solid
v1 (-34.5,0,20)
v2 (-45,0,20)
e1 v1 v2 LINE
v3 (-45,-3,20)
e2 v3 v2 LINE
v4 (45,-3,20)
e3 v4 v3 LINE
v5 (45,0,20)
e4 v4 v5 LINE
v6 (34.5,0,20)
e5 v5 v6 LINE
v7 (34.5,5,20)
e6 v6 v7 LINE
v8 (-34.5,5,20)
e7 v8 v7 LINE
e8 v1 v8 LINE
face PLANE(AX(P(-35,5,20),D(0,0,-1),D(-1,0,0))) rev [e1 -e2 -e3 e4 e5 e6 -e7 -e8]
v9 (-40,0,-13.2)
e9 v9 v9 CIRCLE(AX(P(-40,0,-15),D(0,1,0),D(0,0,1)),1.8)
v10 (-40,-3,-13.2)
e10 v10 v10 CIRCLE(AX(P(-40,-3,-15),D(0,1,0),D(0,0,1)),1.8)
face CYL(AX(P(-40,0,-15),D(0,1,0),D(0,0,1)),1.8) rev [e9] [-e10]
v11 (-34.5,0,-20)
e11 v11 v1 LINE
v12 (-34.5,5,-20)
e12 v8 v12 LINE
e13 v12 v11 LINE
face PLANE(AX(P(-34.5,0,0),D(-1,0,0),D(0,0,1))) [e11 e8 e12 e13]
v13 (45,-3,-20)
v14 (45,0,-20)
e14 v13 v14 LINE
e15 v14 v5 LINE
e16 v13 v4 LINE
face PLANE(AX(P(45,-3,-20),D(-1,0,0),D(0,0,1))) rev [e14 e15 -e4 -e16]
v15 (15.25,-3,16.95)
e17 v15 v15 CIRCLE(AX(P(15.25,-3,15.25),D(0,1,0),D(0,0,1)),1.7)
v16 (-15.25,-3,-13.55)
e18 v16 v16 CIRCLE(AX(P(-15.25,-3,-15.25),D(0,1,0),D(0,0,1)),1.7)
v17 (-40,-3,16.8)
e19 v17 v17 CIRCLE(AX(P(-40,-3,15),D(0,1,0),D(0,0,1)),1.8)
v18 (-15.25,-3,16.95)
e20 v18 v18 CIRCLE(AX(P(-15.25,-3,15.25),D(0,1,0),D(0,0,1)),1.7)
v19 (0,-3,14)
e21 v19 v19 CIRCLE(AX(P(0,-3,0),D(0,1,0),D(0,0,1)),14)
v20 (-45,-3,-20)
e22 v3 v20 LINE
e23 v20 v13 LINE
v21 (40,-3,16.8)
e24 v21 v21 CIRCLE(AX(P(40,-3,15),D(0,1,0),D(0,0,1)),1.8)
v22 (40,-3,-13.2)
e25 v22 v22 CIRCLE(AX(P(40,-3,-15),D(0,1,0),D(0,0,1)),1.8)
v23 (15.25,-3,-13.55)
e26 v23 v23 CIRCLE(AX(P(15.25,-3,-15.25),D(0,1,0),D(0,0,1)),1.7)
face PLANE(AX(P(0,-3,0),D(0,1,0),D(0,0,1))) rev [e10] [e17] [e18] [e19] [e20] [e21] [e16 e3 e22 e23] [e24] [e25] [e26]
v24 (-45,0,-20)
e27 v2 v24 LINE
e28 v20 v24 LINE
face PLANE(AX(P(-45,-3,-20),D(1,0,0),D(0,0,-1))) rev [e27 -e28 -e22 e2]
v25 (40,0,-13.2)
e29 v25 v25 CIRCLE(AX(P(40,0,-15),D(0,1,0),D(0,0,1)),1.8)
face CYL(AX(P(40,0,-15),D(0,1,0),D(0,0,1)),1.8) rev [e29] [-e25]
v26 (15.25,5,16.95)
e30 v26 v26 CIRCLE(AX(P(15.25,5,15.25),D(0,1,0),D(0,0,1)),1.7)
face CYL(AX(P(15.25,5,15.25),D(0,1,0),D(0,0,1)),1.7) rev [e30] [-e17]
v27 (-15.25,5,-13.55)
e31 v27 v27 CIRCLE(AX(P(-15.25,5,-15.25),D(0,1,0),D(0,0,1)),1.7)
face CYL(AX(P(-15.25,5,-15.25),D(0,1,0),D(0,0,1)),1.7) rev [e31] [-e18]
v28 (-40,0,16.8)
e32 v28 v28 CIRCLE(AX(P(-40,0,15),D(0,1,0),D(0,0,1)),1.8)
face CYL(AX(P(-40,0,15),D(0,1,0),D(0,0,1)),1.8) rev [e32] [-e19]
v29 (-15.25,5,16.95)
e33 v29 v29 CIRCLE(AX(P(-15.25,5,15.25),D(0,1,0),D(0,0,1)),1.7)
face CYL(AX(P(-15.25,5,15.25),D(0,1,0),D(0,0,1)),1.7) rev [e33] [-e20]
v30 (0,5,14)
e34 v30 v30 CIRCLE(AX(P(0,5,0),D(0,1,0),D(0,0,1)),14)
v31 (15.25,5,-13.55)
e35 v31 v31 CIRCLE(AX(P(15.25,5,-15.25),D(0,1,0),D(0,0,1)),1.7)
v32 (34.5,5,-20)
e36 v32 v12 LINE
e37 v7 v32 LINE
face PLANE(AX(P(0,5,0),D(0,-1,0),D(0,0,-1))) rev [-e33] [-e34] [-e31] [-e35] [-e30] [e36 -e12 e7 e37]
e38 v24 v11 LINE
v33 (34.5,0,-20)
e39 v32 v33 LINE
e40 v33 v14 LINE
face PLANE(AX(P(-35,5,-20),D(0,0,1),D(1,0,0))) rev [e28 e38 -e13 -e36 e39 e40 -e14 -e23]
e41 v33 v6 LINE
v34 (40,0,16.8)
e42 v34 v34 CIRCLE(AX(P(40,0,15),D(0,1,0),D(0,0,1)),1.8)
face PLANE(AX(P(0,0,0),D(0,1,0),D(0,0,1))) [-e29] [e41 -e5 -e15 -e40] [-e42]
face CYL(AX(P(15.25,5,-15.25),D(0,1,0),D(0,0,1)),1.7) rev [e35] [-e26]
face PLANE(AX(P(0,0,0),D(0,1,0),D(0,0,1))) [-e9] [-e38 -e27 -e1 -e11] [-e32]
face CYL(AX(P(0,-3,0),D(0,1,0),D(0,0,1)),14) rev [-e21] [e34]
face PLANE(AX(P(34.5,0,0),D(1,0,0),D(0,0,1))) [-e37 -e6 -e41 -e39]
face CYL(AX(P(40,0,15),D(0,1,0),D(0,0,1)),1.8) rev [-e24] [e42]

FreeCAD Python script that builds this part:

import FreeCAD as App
import Part
import Sketcher
Q = App.Units.Quantity


def add_polygon(sketch, points):
    """Adds a closed chain of lines whose ends are joined by coincident constraints."""
    first, n = sketch.GeometryCount, len(points)
    for a, b in zip(points, points[1:] + points[:1]):
        sketch.addGeometry(Part.LineSegment(App.Vector(*a, 0), App.Vector(*b, 0)), False)
    for i in range(n):
        sketch.addConstraint(Sketcher.Constraint("Coincident", first + i, 2, first + (i + 1) % n, 1))

doc = App.newDocument("Part")
body = doc.addObject("PartDesign::Body", "Body")

# Sketch on XZ plane
sketch1 = body.newObject("Sketcher::SketchObject", "Sketch")
sketch1.AttachmentSupport = (doc.getObject("XZ_Plane"), [""])
sketch1.MapMode = "FlatFace"
add_polygon(sketch1, [(-35, -20), (-35, 20), (35, 20), (35, -20)])  # lines 0-3
sketch1.addConstraint(Sketcher.Constraint("Vertical", 0))
sketch1.addConstraint(Sketcher.Constraint("Horizontal", 1))
sketch1.addConstraint(Sketcher.Constraint("Vertical", 2))
sketch1.addConstraint(Sketcher.Constraint("Horizontal", 3))
sketch1.addConstraint(Sketcher.Constraint("Symmetric", 0, 2, 2, 2, -1, 1))
sketch1.addConstraint(Sketcher.Constraint("DistanceX", 1, 1, 1, 2, Q("70 mm")))
sketch1.addConstraint(Sketcher.Constraint("DistanceY", 0, 1, 0, 2, Q("40 mm")))
pad1 = body.newObject("PartDesign::Pad", "Pad")
pad1.Profile = sketch1
pad1.Length = 5
pad1.Reversed = True

# Sketch on XZ plane
sketch2 = body.newObject("Sketcher::SketchObject", "Sketch001")
sketch2.AttachmentSupport = (doc.getObject("XZ_Plane"), [""])
sketch2.MapMode = "FlatFace"
add_polygon(sketch2, [(-45, 20), (-45, -20), (45, -20), (45, 20)])  # lines 0-3
sketch2.addConstraint(Sketcher.Constraint("Vertical", 0))
sketch2.addConstraint(Sketcher.Constraint("Horizontal", 1))
sketch2.addConstraint(Sketcher.Constraint("Vertical", 2))
sketch2.addConstraint(Sketcher.Constraint("Horizontal", 3))
sketch2.addConstraint(Sketcher.Constraint("Symmetric", 0, 2, 2, 2, -1, 1))
sketch2.addConstraint(Sketcher.Constraint("DistanceX", 1, 1, 1, 2, Q("90 mm")))
sketch2.addConstraint(Sketcher.Constraint("DistanceY", 0, 2, 0, 1, Q("40 mm")))
pad2 = body.newObject("PartDesign::Pad", "Pad001")
pad2.Profile = sketch2
pad2.Length = 3

# Sketch on XZ plane
sketch3 = body.newObject("Sketcher::SketchObject", "Sketch002")
sketch3.AttachmentSupport = (doc.getObject("XZ_Plane"), [""])
sketch3.MapMode = "FlatFace"
sketch3.addGeometry(Part.Circle(App.Vector(-40, -15, 0), App.Vector(0, 0, 1), 1.8), False)
sketch3.addGeometry(Part.Circle(App.Vector(-40, 15, 0), App.Vector(0, 0, 1), 1.8), False)
sketch3.addGeometry(Part.Circle(App.Vector(40, -15, 0), App.Vector(0, 0, 1), 1.8), False)
sketch3.addGeometry(Part.Circle(App.Vector(40, 15, 0), App.Vector(0, 0, 1), 1.8), False)
sketch3.addConstraint(Sketcher.Constraint("Equal", 0, 1))
sketch3.addConstraint(Sketcher.Constraint("Equal", 1, 2))
sketch3.addConstraint(Sketcher.Constraint("Equal", 2, 3))
sketch3.addConstraint(Sketcher.Constraint("Symmetric", 1, 3, 2, 3, -1, 1))
sketch3.addConstraint(Sketcher.Constraint("Symmetric", 0, 3, 3, 3, -1, 1))
sketch3.addConstraint(Sketcher.Constraint("Symmetric", 0, 3, 2, 3, -2))
sketch3.addConstraint(Sketcher.Constraint("Diameter", 0, Q("3.6 mm")))
sketch3.addConstraint(Sketcher.Constraint("DistanceX", 0, 3, -1, 1, Q("40 mm")))
sketch3.addConstraint(Sketcher.Constraint("DistanceY", 0, 3, -1, 1, Q("15 mm")))
doc.recompute()
hole = body.newObject("PartDesign::Hole", "Hole")
hole.Profile = sketch3
hole.ThreadType = "None"
hole.Diameter = 3.6
hole.DepthType = "ThroughAll"
hole.Reversed = True

# Sketch on XZ plane
sketch4 = body.newObject("Sketcher::SketchObject", "Sketch003")
sketch4.AttachmentSupport = (doc.getObject("XZ_Plane"), [""])
sketch4.MapMode = "FlatFace"
sketch4.AttachmentOffset = App.Placement(App.Vector(0, 0, -5), App.Rotation())
sketch4.addGeometry(Part.Circle(App.Vector(0, 0, 0), App.Vector(0, 0, 1), 1.7), False)
sketch4.addGeometry(Part.Circle(App.Vector(15.2, -15.2, 0), App.Vector(0, 0, 1), 1.7), False)
sketch4.addGeometry(Part.Circle(App.Vector(-15.2, 15.2, 0), App.Vector(0, 0, 1), 1.7), False)
sketch4.addGeometry(Part.Circle(App.Vector(-15.2, -15.2, 0), App.Vector(0, 0, 1), 1.7), False)
sketch4.addGeometry(Part.Circle(App.Vector(15.2, 15.2, 0), App.Vector(0, 0, 1), 1.7), False)
sketch4.addConstraint(Sketcher.Constraint("Coincident", 0, 3, -1, 1))
sketch4.addConstraint(Sketcher.Constraint("Equal", 0, 1))
sketch4.addConstraint(Sketcher.Constraint("Equal", 1, 2))
sketch4.addConstraint(Sketcher.Constraint("Equal", 2, 3))
sketch4.addConstraint(Sketcher.Constraint("Equal", 3, 4))
sketch4.addConstraint(Sketcher.Constraint("Symmetric", 1, 3, 2, 3, -1, 1))
sketch4.addConstraint(Sketcher.Constraint("Symmetric", 3, 3, 4, 3, -1, 1))
sketch4.addConstraint(Sketcher.Constraint("Symmetric", 1, 3, 3, 3, -2))
sketch4.addConstraint(Sketcher.Constraint("Diameter", 0, Q("3.4 mm")))
sketch4.addConstraint(Sketcher.Constraint("DistanceX", 2, 3, 1, 3, Q("30.5 mm")))
sketch4.addConstraint(Sketcher.Constraint("DistanceY", 1, 3, 2, 3, Q("30.5 mm")))
doc.recompute()
hole2 = body.newObject("PartDesign::Hole", "Hole001")
hole2.Profile = sketch4
hole2.ThreadType = "None"
hole2.Diameter = 3.4
hole2.DepthType = "ThroughAll"
hole2.Reversed = True

# Sketch on XZ plane
sketch5 = body.newObject("Sketcher::SketchObject", "Sketch004")
sketch5.AttachmentSupport = (doc.getObject("XZ_Plane"), [""])
sketch5.MapMode = "FlatFace"
sketch5.AttachmentOffset = App.Placement(App.Vector(0, 0, -5), App.Rotation())
sketch5.addGeometry(Part.Circle(App.Vector(0, 0, 0), App.Vector(0, 0, 1), 14), False)
sketch5.addConstraint(Sketcher.Constraint("Coincident", 0, 3, -1, 1))
sketch5.addConstraint(Sketcher.Constraint("Diameter", 0, Q("28 mm")))
pocket1 = body.newObject("PartDesign::Pocket", "Pocket")
pocket1.Profile = sketch5
pocket1.Type = "ThroughAll"
pocket1.Reversed = True

# Sketch on YZ plane
sketch6 = body.newObject("Sketcher::SketchObject", "Sketch005")
sketch6.AttachmentSupport = (doc.getObject("YZ_Plane"), [""])
sketch6.MapMode = "FlatFace"
sketch6.AttachmentOffset = App.Placement(App.Vector(0, 0, -35), App.Rotation())
add_polygon(sketch6, [(5, -20), (0, -20), (0, 20), (5, 20)])  # lines 0-3
sketch6.addConstraint(Sketcher.Constraint("Horizontal", 0))
sketch6.addConstraint(Sketcher.Constraint("Vertical", 1))
sketch6.addConstraint(Sketcher.Constraint("Horizontal", 2))
sketch6.addConstraint(Sketcher.Constraint("Vertical", 3))
sketch6.addConstraint(Sketcher.Constraint("Symmetric", 0, 2, 1, 2, -1, 1))
sketch6.addConstraint(Sketcher.Constraint("DistanceX", 0, 2, 0, 1, Q("5 mm")))
sketch6.addConstraint(Sketcher.Constraint("DistanceY", 1, 1, 1, 2, Q("40 mm")))
pocket2 = body.newObject("PartDesign::Pocket", "Pocket001")
pocket2.Profile = sketch6
pocket2.Length = 0.5
pocket2.Reversed = True
doc.recompute()

mirrored = body.newObject("PartDesign::Mirrored", "Mirrored")
mirrored.Originals = [pocket2]
mirrored.MirrorPlane = (doc.getObject("YZ_Plane"), [""])
body.Tip = mirrored

doc.recompute()
